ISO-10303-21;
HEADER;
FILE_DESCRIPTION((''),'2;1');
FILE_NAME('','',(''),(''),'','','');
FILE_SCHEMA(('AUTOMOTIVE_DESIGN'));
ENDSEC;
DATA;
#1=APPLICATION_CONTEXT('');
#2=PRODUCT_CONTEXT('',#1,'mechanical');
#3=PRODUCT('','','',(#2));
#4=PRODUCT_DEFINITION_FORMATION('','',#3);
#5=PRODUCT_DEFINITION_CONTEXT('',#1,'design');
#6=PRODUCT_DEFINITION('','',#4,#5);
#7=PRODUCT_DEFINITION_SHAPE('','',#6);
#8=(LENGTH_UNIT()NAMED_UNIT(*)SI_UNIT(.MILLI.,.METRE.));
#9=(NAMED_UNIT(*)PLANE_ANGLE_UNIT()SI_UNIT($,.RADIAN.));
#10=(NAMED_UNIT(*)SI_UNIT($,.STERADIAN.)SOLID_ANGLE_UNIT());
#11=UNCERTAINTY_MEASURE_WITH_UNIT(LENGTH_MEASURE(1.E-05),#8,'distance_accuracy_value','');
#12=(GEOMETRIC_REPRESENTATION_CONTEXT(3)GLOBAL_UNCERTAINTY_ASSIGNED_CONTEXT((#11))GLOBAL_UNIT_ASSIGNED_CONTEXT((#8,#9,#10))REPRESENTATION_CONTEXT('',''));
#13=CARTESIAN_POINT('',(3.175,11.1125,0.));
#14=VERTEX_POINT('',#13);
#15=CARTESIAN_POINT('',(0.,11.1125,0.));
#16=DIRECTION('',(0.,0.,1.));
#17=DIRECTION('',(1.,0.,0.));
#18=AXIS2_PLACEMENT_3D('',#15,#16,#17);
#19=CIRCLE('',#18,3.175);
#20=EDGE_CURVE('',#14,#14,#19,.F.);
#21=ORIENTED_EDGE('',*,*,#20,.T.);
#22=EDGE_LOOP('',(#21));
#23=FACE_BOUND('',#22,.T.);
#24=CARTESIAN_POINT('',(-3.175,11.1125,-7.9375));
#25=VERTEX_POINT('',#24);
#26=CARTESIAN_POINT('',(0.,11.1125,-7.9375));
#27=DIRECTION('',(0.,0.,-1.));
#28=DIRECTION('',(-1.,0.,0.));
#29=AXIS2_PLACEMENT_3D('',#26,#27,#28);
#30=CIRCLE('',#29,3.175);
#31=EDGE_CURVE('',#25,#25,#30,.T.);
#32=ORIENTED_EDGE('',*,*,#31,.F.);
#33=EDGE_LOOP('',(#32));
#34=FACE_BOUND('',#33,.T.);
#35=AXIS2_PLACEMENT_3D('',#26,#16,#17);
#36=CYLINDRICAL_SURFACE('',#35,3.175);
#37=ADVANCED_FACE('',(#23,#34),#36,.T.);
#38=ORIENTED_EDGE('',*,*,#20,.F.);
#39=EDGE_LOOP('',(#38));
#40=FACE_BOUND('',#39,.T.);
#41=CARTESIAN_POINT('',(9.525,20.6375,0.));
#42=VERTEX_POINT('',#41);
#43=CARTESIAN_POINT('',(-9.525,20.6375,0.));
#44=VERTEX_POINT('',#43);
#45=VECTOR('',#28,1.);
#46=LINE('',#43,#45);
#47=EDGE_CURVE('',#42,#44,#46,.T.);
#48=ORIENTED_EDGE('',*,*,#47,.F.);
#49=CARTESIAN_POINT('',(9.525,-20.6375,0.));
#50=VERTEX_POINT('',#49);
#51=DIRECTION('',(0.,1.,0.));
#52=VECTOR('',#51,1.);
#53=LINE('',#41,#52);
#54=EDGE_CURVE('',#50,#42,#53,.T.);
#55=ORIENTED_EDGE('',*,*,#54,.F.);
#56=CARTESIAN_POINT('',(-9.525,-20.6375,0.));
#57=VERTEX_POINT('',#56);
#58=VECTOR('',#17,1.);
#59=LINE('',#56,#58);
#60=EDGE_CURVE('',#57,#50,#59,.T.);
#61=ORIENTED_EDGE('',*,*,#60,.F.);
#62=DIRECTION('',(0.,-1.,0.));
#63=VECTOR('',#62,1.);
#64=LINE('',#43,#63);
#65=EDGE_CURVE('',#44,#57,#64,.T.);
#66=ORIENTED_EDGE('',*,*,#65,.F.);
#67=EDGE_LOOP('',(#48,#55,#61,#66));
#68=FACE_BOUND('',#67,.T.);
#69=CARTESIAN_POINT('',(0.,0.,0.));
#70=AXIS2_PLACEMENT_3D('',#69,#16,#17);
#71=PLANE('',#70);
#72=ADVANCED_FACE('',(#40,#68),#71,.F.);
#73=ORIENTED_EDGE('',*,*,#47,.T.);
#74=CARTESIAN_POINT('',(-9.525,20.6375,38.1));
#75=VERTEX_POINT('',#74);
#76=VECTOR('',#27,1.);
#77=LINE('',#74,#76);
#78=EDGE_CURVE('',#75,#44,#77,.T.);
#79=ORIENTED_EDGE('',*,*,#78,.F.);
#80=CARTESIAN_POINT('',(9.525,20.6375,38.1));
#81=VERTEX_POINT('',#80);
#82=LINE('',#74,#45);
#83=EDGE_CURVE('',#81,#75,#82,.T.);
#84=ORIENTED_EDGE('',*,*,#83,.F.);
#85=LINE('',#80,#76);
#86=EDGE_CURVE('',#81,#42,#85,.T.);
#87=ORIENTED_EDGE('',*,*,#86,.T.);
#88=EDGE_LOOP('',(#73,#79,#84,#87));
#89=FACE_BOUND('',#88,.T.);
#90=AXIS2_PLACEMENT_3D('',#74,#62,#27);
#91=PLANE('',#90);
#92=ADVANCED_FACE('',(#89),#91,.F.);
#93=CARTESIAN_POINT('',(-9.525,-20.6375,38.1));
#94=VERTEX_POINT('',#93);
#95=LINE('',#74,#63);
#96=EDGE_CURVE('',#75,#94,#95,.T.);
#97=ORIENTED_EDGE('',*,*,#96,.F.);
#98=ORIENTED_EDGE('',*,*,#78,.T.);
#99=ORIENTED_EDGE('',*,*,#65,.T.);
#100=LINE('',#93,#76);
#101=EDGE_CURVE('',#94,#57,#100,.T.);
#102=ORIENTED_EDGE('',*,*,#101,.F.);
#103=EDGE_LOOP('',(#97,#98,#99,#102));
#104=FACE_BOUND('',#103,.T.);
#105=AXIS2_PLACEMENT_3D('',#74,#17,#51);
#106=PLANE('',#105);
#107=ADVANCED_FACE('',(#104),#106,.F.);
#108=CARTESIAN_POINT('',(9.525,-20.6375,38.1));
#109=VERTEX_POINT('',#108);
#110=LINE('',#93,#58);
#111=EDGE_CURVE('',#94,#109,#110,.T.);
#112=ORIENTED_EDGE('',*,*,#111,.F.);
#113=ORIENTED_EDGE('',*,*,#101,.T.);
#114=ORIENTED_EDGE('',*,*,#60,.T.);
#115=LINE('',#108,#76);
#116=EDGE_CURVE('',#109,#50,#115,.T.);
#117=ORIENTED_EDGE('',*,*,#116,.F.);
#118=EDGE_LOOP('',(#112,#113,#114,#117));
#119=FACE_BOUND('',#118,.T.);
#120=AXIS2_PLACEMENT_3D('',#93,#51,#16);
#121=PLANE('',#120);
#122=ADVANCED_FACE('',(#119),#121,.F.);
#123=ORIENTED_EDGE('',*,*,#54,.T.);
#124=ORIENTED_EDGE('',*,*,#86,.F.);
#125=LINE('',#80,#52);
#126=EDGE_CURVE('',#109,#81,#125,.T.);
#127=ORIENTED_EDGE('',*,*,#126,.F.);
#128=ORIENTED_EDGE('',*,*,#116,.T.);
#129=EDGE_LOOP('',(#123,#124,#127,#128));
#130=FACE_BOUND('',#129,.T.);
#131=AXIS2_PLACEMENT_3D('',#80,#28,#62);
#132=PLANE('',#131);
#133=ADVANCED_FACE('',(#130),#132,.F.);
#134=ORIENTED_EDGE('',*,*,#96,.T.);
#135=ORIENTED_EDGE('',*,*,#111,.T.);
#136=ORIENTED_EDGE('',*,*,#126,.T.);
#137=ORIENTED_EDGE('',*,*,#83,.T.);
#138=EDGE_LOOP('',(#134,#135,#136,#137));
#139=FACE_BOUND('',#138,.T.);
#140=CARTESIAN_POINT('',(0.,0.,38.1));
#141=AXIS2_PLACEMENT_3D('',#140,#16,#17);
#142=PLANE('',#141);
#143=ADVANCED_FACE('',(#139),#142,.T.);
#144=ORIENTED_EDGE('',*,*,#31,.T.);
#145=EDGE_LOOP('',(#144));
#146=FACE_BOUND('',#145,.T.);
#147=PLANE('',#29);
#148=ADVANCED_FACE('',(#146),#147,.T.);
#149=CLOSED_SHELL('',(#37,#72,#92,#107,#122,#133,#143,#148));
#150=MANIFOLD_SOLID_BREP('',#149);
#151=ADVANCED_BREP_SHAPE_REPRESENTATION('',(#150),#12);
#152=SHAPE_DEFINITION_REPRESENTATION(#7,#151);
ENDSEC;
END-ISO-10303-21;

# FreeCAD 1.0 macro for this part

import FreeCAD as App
import Part
import Sketcher

V = App.Vector
Q = App.Units.Quantity


def add_polygon(sketch, points):
    """Adds a closed chain of lines whose ends are joined by coincident constraints."""
    first, n = sketch.GeometryCount, len(points)
    for a, b in zip(points, points[1:] + points[:1]):
        sketch.addGeometry(Part.LineSegment(App.Vector(*a, 0), App.Vector(*b, 0)), False)
    for i in range(n):
        sketch.addConstraint(Sketcher.Constraint("Coincident", first + i, 2, first + (i + 1) % n, 1))

doc = App.newDocument("Part")
body = doc.addObject("PartDesign::Body", "Body")

# Sketch on XY plane
sketch1 = body.newObject("Sketcher::SketchObject", "Sketch")
sketch1.AttachmentSupport = (doc.getObject("XY_Plane"), [""])
sketch1.MapMode = "FlatFace"
add_polygon(sketch1, [(-10, 21), (-10, -21), (10, -21), (10, 21)])  # lines 0-3
sketch1.addConstraint([
    Sketcher.Constraint("Vertical", 0),
    Sketcher.Constraint("Horizontal", 1),
    Sketcher.Constraint("Vertical", 2),
    Sketcher.Constraint("Horizontal", 3),
    Sketcher.Constraint("Symmetric", 0, 2, 2, 2, -1, 1),
    Sketcher.Constraint("DistanceX", 1, 1, 1, 2, Q("0.75 in")),
    Sketcher.Constraint("DistanceY", 0, 2, 0, 1, Q("1.625 in")),
])
pad1 = body.newObject("PartDesign::Pad", "Pad")
pad1.Profile = sketch1
pad1.Length = Q("1.5 in")

# Sketch on XY plane
sketch2 = body.newObject("Sketcher::SketchObject", "Sketch001")
sketch2.AttachmentSupport = (doc.getObject("XY_Plane"), [""])
sketch2.MapMode = "FlatFace"
sketch2.addGeometry(Part.Circle(V(0, 11.1, 0), V(0, 0, 1), 3.2), False)
sketch2.addConstraint([
    Sketcher.Constraint("PointOnObject", 0, 3, -2),
    Sketcher.Constraint("Diameter", 0, Q("0.25 in")),
    Sketcher.Constraint("DistanceY", -1, 1, 0, 3, Q("0.4375 in")),
])
pad2 = body.newObject("PartDesign::Pad", "Pad001")
pad2.Profile = sketch2
pad2.Length = Q("0.3125 in")
pad2.Reversed = True

doc.recompute()
